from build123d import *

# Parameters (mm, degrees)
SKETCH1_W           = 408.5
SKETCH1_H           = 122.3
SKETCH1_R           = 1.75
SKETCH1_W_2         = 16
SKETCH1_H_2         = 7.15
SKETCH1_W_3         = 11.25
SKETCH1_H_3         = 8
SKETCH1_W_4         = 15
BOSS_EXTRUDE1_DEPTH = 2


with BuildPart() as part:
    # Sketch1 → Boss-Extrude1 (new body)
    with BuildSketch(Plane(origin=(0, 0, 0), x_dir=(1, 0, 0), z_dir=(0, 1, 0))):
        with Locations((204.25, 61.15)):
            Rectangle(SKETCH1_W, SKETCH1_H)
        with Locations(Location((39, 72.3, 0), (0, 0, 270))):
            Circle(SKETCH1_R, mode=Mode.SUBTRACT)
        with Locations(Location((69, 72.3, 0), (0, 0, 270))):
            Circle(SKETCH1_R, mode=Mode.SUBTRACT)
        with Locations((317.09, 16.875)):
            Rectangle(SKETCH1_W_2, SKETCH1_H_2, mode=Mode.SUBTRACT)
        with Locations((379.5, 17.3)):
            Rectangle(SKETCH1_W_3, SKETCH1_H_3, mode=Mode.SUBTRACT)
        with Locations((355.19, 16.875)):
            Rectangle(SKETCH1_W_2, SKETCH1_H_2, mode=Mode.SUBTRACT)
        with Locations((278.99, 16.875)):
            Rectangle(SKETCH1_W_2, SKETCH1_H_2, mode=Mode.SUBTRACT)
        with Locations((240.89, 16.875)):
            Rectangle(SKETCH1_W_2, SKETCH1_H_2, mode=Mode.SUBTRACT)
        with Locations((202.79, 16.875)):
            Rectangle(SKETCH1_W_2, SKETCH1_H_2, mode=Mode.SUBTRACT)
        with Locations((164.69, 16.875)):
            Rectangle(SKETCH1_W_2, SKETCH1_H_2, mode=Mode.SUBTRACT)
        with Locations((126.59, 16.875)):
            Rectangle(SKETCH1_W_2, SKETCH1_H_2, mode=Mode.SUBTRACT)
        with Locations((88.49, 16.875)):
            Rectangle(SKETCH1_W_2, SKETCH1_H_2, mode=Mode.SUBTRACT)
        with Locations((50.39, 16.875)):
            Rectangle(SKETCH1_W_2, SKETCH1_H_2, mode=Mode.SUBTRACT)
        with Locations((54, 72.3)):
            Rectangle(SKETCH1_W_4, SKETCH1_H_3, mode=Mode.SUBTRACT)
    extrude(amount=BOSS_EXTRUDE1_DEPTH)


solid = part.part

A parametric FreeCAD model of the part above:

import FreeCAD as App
import Part
import Sketcher
from FreeCAD import Vector

doc = App.newDocument("Part")
body = doc.addObject("PartDesign::Body", "Body")

# Sketch on XZ plane
sketch1 = body.newObject("Sketcher::SketchObject", "Sketch")
sketch1.AttachmentSupport = (doc.getObject("XZ_Plane"), [""])
sketch1.MapMode = "FlatFace"
sketch1.addGeometry(Part.LineSegment(Vector(0, -122.3, 0), Vector(0, 0, 0)), False)
sketch1.addGeometry(Part.LineSegment(Vector(0, 0, 0), Vector(408.5, 0, 0)), False)
sketch1.addGeometry(Part.LineSegment(Vector(408.5, 0, 0), Vector(408.5, -122.3, 0)), False)
sketch1.addGeometry(Part.LineSegment(Vector(408.5, -122.3, 0), Vector(0, -122.3, 0)), False)
sketch1.addGeometry(Part.LineSegment(Vector(58.4, -13.3, 0), Vector(42.4, -13.3, 0)), False)
sketch1.addGeometry(Part.LineSegment(Vector(42.4, -13.3, 0), Vector(42.4, -20.4, 0)), False)
sketch1.addGeometry(Part.LineSegment(Vector(42.4, -20.4, 0), Vector(58.4, -20.4, 0)), False)
sketch1.addGeometry(Part.LineSegment(Vector(58.4, -20.4, 0), Vector(58.4, -13.3, 0)), False)
sketch1.addGeometry(Part.LineSegment(Vector(96.5, -13.3, 0), Vector(80.5, -13.3, 0)), False)
sketch1.addGeometry(Part.LineSegment(Vector(80.5, -13.3, 0), Vector(80.5, -20.4, 0)), False)
sketch1.addGeometry(Part.LineSegment(Vector(80.5, -20.4, 0), Vector(96.5, -20.4, 0)), False)
sketch1.addGeometry(Part.LineSegment(Vector(96.5, -20.4, 0), Vector(96.5, -13.3, 0)), False)
sketch1.addGeometry(Part.LineSegment(Vector(134.6, -13.3, 0), Vector(118.6, -13.3, 0)), False)
sketch1.addGeometry(Part.LineSegment(Vector(118.6, -13.3, 0), Vector(118.6, -20.4, 0)), False)
sketch1.addGeometry(Part.LineSegment(Vector(118.6, -20.4, 0), Vector(134.6, -20.4, 0)), False)
sketch1.addGeometry(Part.LineSegment(Vector(134.6, -20.4, 0), Vector(134.6, -13.3, 0)), False)
sketch1.addGeometry(Part.LineSegment(Vector(172.7, -13.3, 0), Vector(156.7, -13.3, 0)), False)
sketch1.addGeometry(Part.LineSegment(Vector(156.7, -13.3, 0), Vector(156.7, -20.4, 0)), False)
sketch1.addGeometry(Part.LineSegment(Vector(156.7, -20.4, 0), Vector(172.7, -20.4, 0)), False)
sketch1.addGeometry(Part.LineSegment(Vector(172.7, -20.4, 0), Vector(172.7, -13.3, 0)), False)
sketch1.addGeometry(Part.LineSegment(Vector(210.8, -13.3, 0), Vector(194.8, -13.3, 0)), False)
sketch1.addGeometry(Part.LineSegment(Vector(194.8, -13.3, 0), Vector(194.8, -20.4, 0)), False)
sketch1.addGeometry(Part.LineSegment(Vector(194.8, -20.4, 0), Vector(210.8, -20.4, 0)), False)
sketch1.addGeometry(Part.LineSegment(Vector(210.8, -20.4, 0), Vector(210.8, -13.3, 0)), False)
sketch1.addGeometry(Part.LineSegment(Vector(248.9, -13.3, 0), Vector(232.9, -13.3, 0)), False)
sketch1.addGeometry(Part.LineSegment(Vector(232.9, -13.3, 0), Vector(232.9, -20.4, 0)), False)
sketch1.addGeometry(Part.LineSegment(Vector(232.9, -20.4, 0), Vector(248.9, -20.4, 0)), False)
sketch1.addGeometry(Part.LineSegment(Vector(248.9, -20.4, 0), Vector(248.9, -13.3, 0)), False)
sketch1.addGeometry(Part.LineSegment(Vector(287, -13.3, 0), Vector(271, -13.3, 0)), False)
sketch1.addGeometry(Part.LineSegment(Vector(271, -13.3, 0), Vector(271, -20.4, 0)), False)
sketch1.addGeometry(Part.LineSegment(Vector(271, -20.4, 0), Vector(287, -20.4, 0)), False)
sketch1.addGeometry(Part.LineSegment(Vector(287, -20.4, 0), Vector(287, -13.3, 0)), False)
sketch1.addGeometry(Part.LineSegment(Vector(325.1, -13.3, 0), Vector(309.1, -13.3, 0)), False)
sketch1.addGeometry(Part.LineSegment(Vector(309.1, -13.3, 0), Vector(309.1, -20.4, 0)), False)
sketch1.addGeometry(Part.LineSegment(Vector(309.1, -20.4, 0), Vector(325.1, -20.4, 0)), False)
sketch1.addGeometry(Part.LineSegment(Vector(325.1, -20.4, 0), Vector(325.1, -13.3, 0)), False)
sketch1.addGeometry(Part.LineSegment(Vector(363.2, -13.3, 0), Vector(347.2, -13.3, 0)), False)
sketch1.addGeometry(Part.LineSegment(Vector(347.2, -13.3, 0), Vector(347.2, -20.4, 0)), False)
sketch1.addGeometry(Part.LineSegment(Vector(347.2, -20.4, 0), Vector(363.2, -20.4, 0)), False)
sketch1.addGeometry(Part.LineSegment(Vector(363.2, -20.4, 0), Vector(363.2, -13.3, 0)), False)
sketch1.addGeometry(Part.LineSegment(Vector(385.1, -13.3, 0), Vector(373.9, -13.3, 0)), False)
sketch1.addGeometry(Part.LineSegment(Vector(373.9, -13.3, 0), Vector(373.9, -21.3, 0)), False)
sketch1.addGeometry(Part.LineSegment(Vector(373.9, -21.3, 0), Vector(385.1, -21.3, 0)), False)
sketch1.addGeometry(Part.LineSegment(Vector(385.1, -21.3, 0), Vector(385.1, -13.3, 0)), False)
sketch1.addGeometry(Part.Circle(Vector(39, -72.3, 0), Vector(0, 0, 1), 1.8), False)
sketch1.addGeometry(Part.LineSegment(Vector(61.5, -68.3, 0), Vector(46.5, -68.3, 0)), False)
sketch1.addGeometry(Part.LineSegment(Vector(46.5, -68.3, 0), Vector(46.5, -76.3, 0)), False)
sketch1.addGeometry(Part.LineSegment(Vector(46.5, -76.3, 0), Vector(61.5, -76.3, 0)), False)
sketch1.addGeometry(Part.LineSegment(Vector(61.5, -76.3, 0), Vector(61.5, -68.3, 0)), False)
sketch1.addGeometry(Part.Circle(Vector(69, -72.3, 0), Vector(0, 0, 1), 1.8), False)
sketch1.addConstraint(Sketcher.Constraint("Coincident", 0, 2, 1, 1))
sketch1.addConstraint(Sketcher.Constraint("Coincident", 1, 2, 2, 1))
sketch1.addConstraint(Sketcher.Constraint("Coincident", 2, 2, 3, 1))
sketch1.addConstraint(Sketcher.Constraint("Coincident", 3, 2, 0, 1))
sketch1.addConstraint(Sketcher.Constraint("Coincident", 4, 2, 5, 1))
sketch1.addConstraint(Sketcher.Constraint("Coincident", 5, 2, 6, 1))
sketch1.addConstraint(Sketcher.Constraint("Coincident", 6, 2, 7, 1))
sketch1.addConstraint(Sketcher.Constraint("Coincident", 7, 2, 4, 1))
sketch1.addConstraint(Sketcher.Constraint("Coincident", 8, 2, 9, 1))
sketch1.addConstraint(Sketcher.Constraint("Coincident", 9, 2, 10, 1))
sketch1.addConstraint(Sketcher.Constraint("Coincident", 10, 2, 11, 1))
sketch1.addConstraint(Sketcher.Constraint("Coincident", 11, 2, 8, 1))
sketch1.addConstraint(Sketcher.Constraint("Coincident", 12, 2, 13, 1))
sketch1.addConstraint(Sketcher.Constraint("Coincident", 13, 2, 14, 1))
sketch1.addConstraint(Sketcher.Constraint("Coincident", 14, 2, 15, 1))
sketch1.addConstraint(Sketcher.Constraint("Coincident", 15, 2, 12, 1))
sketch1.addConstraint(Sketcher.Constraint("Coincident", 16, 2, 17, 1))
sketch1.addConstraint(Sketcher.Constraint("Coincident", 17, 2, 18, 1))
sketch1.addConstraint(Sketcher.Constraint("Coincident", 18, 2, 19, 1))
sketch1.addConstraint(Sketcher.Constraint("Coincident", 19, 2, 16, 1))
sketch1.addConstraint(Sketcher.Constraint("Coincident", 20, 2, 21, 1))
sketch1.addConstraint(Sketcher.Constraint("Coincident", 21, 2, 22, 1))
sketch1.addConstraint(Sketcher.Constraint("Coincident", 22, 2, 23, 1))
sketch1.addConstraint(Sketcher.Constraint("Coincident", 23, 2, 20, 1))
sketch1.addConstraint(Sketcher.Constraint("Coincident", 24, 2, 25, 1))
sketch1.addConstraint(Sketcher.Constraint("Coincident", 25, 2, 26, 1))
sketch1.addConstraint(Sketcher.Constraint("Coincident", 26, 2, 27, 1))
sketch1.addConstraint(Sketcher.Constraint("Coincident", 27, 2, 24, 1))
sketch1.addConstraint(Sketcher.Constraint("Coincident", 28, 2, 29, 1))
sketch1.addConstraint(Sketcher.Constraint("Coincident", 29, 2, 30, 1))
sketch1.addConstraint(Sketcher.Constraint("Coincident", 30, 2, 31, 1))
sketch1.addConstraint(Sketcher.Constraint("Coincident", 31, 2, 28, 1))
sketch1.addConstraint(Sketcher.Constraint("Coincident", 32, 2, 33, 1))
sketch1.addConstraint(Sketcher.Constraint("Coincident", 33, 2, 34, 1))
sketch1.addConstraint(Sketcher.Constraint("Coincident", 34, 2, 35, 1))
sketch1.addConstraint(Sketcher.Constraint("Coincident", 35, 2, 32, 1))
sketch1.addConstraint(Sketcher.Constraint("Coincident", 36, 2, 37, 1))
sketch1.addConstraint(Sketcher.Constraint("Coincident", 37, 2, 38, 1))
sketch1.addConstraint(Sketcher.Constraint("Coincident", 38, 2, 39, 1))
sketch1.addConstraint(Sketcher.Constraint("Coincident", 39, 2, 36, 1))
sketch1.addConstraint(Sketcher.Constraint("Coincident", 40, 2, 41, 1))
sketch1.addConstraint(Sketcher.Constraint("Coincident", 41, 2, 42, 1))
sketch1.addConstraint(Sketcher.Constraint("Coincident", 42, 2, 43, 1))
sketch1.addConstraint(Sketcher.Constraint("Coincident", 43, 2, 40, 1))
sketch1.addConstraint(Sketcher.Constraint("Coincident", 45, 2, 46, 1))
sketch1.addConstraint(Sketcher.Constraint("Coincident", 46, 2, 47, 1))
sketch1.addConstraint(Sketcher.Constraint("Coincident", 47, 2, 48, 1))
sketch1.addConstraint(Sketcher.Constraint("Coincident", 48, 2, 45, 1))
sketch1.addConstraint(Sketcher.Constraint("Vertical", 0))
sketch1.addConstraint(Sketcher.Constraint("Horizontal", 1))
sketch1.addConstraint(Sketcher.Constraint("Vertical", 2))
sketch1.addConstraint(Sketcher.Constraint("Horizontal", 3))
sketch1.addConstraint(Sketcher.Constraint("Horizontal", 4))
sketch1.addConstraint(Sketcher.Constraint("Vertical", 5))
sketch1.addConstraint(Sketcher.Constraint("Horizontal", 6))
sketch1.addConstraint(Sketcher.Constraint("Vertical", 7))
sketch1.addConstraint(Sketcher.Constraint("Horizontal", 8))
sketch1.addConstraint(Sketcher.Constraint("Vertical", 9))
sketch1.addConstraint(Sketcher.Constraint("Horizontal", 10))
sketch1.addConstraint(Sketcher.Constraint("Vertical", 11))
sketch1.addConstraint(Sketcher.Constraint("Horizontal", 12))
sketch1.addConstraint(Sketcher.Constraint("Vertical", 13))
sketch1.addConstraint(Sketcher.Constraint("Horizontal", 14))
sketch1.addConstraint(Sketcher.Constraint("Vertical", 15))
sketch1.addConstraint(Sketcher.Constraint("Horizontal", 16))
sketch1.addConstraint(Sketcher.Constraint("Vertical", 17))
sketch1.addConstraint(Sketcher.Constraint("Horizontal", 18))
sketch1.addConstraint(Sketcher.Constraint("Vertical", 19))
sketch1.addConstraint(Sketcher.Constraint("Horizontal", 20))
sketch1.addConstraint(Sketcher.Constraint("Vertical", 21))
sketch1.addConstraint(Sketcher.Constraint("Horizontal", 22))
sketch1.addConstraint(Sketcher.Constraint("Vertical", 23))
sketch1.addConstraint(Sketcher.Constraint("Horizontal", 24))
sketch1.addConstraint(Sketcher.Constraint("Vertical", 25))
sketch1.addConstraint(Sketcher.Constraint("Horizontal", 26))
sketch1.addConstraint(Sketcher.Constraint("Vertical", 27))
sketch1.addConstraint(Sketcher.Constraint("Horizontal", 28))
sketch1.addConstraint(Sketcher.Constraint("Vertical", 29))
sketch1.addConstraint(Sketcher.Constraint("Horizontal", 30))
sketch1.addConstraint(Sketcher.Constraint("Vertical", 31))
sketch1.addConstraint(Sketcher.Constraint("Horizontal", 32))
sketch1.addConstraint(Sketcher.Constraint("Vertical", 33))
sketch1.addConstraint(Sketcher.Constraint("Horizontal", 34))
sketch1.addConstraint(Sketcher.Constraint("Vertical", 35))
sketch1.addConstraint(Sketcher.Constraint("Horizontal", 36))
sketch1.addConstraint(Sketcher.Constraint("Vertical", 37))
sketch1.addConstraint(Sketcher.Constraint("Horizontal", 38))
sketch1.addConstraint(Sketcher.Constraint("Vertical", 39))
sketch1.addConstraint(Sketcher.Constraint("Horizontal", 40))
sketch1.addConstraint(Sketcher.Constraint("Vertical", 41))
sketch1.addConstraint(Sketcher.Constraint("Horizontal", 42))
sketch1.addConstraint(Sketcher.Constraint("Vertical", 43))
sketch1.addConstraint(Sketcher.Constraint("Horizontal", 45))
sketch1.addConstraint(Sketcher.Constraint("Vertical", 46))
sketch1.addConstraint(Sketcher.Constraint("Horizontal", 47))
sketch1.addConstraint(Sketcher.Constraint("Vertical", 48))
sketch1.addConstraint(Sketcher.Constraint("Coincident", 0, 2, -1, 1))
sketch1.addConstraint(Sketcher.Constraint("Equal", 44, 49))
sketch1.addConstraint(Sketcher.Constraint("Horizontal", 44, 3, 49, 3))
sketch1.addConstraint(Sketcher.Constraint("Horizontal", 7, 2, 8, 2))
sketch1.addConstraint(Sketcher.Constraint("Horizontal", 6, 2, 9, 2))
sketch1.addConstraint(Sketcher.Constraint("Horizontal", 11, 2, 12, 2))
sketch1.addConstraint(Sketcher.Constraint("Horizontal", 10, 2, 13, 2))
sketch1.addConstraint(Sketcher.Constraint("Horizontal", 15, 2, 16, 2))
sketch1.addConstraint(Sketcher.Constraint("Horizontal", 14, 2, 17, 2))
sketch1.addConstraint(Sketcher.Constraint("Horizontal", 19, 2, 20, 2))
sketch1.addConstraint(Sketcher.Constraint("Horizontal", 18, 2, 21, 2))
sketch1.addConstraint(Sketcher.Constraint("Horizontal", 23, 2, 24, 2))
sketch1.addConstraint(Sketcher.Constraint("Horizontal", 22, 2, 25, 2))
sketch1.addConstraint(Sketcher.Constraint("Horizontal", 27, 2, 28, 2))
sketch1.addConstraint(Sketcher.Constraint("Horizontal", 26, 2, 29, 2))
sketch1.addConstraint(Sketcher.Constraint("Horizontal", 31, 2, 32, 2))
sketch1.addConstraint(Sketcher.Constraint("Horizontal", 30, 2, 33, 2))
sketch1.addConstraint(Sketcher.Constraint("Horizontal", 35, 2, 36, 2))
sketch1.addConstraint(Sketcher.Constraint("Horizontal", 34, 2, 37, 2))
sketch1.addConstraint(Sketcher.Constraint("Horizontal", 39, 2, 40, 2))
sketch1.addConstraint(Sketcher.Constraint("Equal", 6, 8))
sketch1.addConstraint(Sketcher.Constraint("Equal", 10, 12))
sketch1.addConstraint(Sketcher.Constraint("Equal", 14, 16))
sketch1.addConstraint(Sketcher.Constraint("Equal", 18, 20))
sketch1.addConstraint(Sketcher.Constraint("Equal", 22, 24))
sketch1.addConstraint(Sketcher.Constraint("Equal", 26, 28))
sketch1.addConstraint(Sketcher.Constraint("Equal", 30, 32))
sketch1.addConstraint(Sketcher.Constraint("Equal", 34, 36))
sketch1.addConstraint(Sketcher.Constraint("Equal", 43, 46))
sketch1.addConstraint(Sketcher.Constraint("Diameter", 44, 3.5))
sketch1.addConstraint(Sketcher.Constraint("DistanceX", 4, 2, 4, 1, 16.0))
sketch1.addConstraint(Sketcher.Constraint("DistanceX", 45, 2, 45, 1, 15.0))
sketch1.addConstraint(Sketcher.Constraint("DistanceY", 41, 2, 41, 1, 8.0))
sketch1.addConstraint(Sketcher.Constraint("DistanceX", 1, 1, 1, 2, 408.5))
sketch1.addConstraint(Sketcher.Constraint("DistanceY", 0, 1, 0, 2, 122.3))
sketch1.addConstraint(Sketcher.Constraint("DistanceX", -1, 1, 44, 3, 39.0))
sketch1.addConstraint(Sketcher.Constraint("DistanceX", -1, 1, 49, 3, 69.0))
sketch1.addConstraint(Sketcher.Constraint("DistanceY", 2, 2, 49, 3, 50.0))
sketch1.addConstraint(Sketcher.Constraint("DistanceY", 44, 3, 4, 2, 59.0))
sketch1.addConstraint(Sketcher.Constraint("DistanceY", 44, 3, 45, 2, 4.0))
sketch1.addConstraint(Sketcher.Constraint("DistanceX", 40, 2, 40, 1, 11.25))
sketch1.addConstraint(Sketcher.Constraint("DistanceY", 5, 2, 5, 1, 7.15))
sketch1.addConstraint(Sketcher.Constraint("DistanceX", -1, 1, 45, 2, 46.5))
sketch1.addConstraint(Sketcher.Constraint("DistanceX", 7, 2, 8, 2, 22.1))
sketch1.addConstraint(Sketcher.Constraint("DistanceX", 11, 2, 12, 2, 22.1))
sketch1.addConstraint(Sketcher.Constraint("DistanceX", 15, 2, 16, 2, 22.1))
sketch1.addConstraint(Sketcher.Constraint("DistanceX", 19, 2, 20, 2, 22.1))
sketch1.addConstraint(Sketcher.Constraint("DistanceX", 23, 2, 24, 2, 22.1))
sketch1.addConstraint(Sketcher.Constraint("DistanceX", 27, 2, 28, 2, 22.1))
sketch1.addConstraint(Sketcher.Constraint("DistanceX", 31, 2, 32, 2, 22.1))
sketch1.addConstraint(Sketcher.Constraint("DistanceX", 35, 2, 36, 2, 22.1))
sketch1.addConstraint(Sketcher.Constraint("DistanceX", -1, 1, 4, 2, 42.39))
sketch1.addConstraint(Sketcher.Constraint("DistanceX", -1, 1, 40, 2, 373.875))
pad1 = body.newObject("PartDesign::Pad", "Pad")
pad1.Profile = sketch1
pad1.Length = 2
pad1.Reversed = True

doc.recompute()
